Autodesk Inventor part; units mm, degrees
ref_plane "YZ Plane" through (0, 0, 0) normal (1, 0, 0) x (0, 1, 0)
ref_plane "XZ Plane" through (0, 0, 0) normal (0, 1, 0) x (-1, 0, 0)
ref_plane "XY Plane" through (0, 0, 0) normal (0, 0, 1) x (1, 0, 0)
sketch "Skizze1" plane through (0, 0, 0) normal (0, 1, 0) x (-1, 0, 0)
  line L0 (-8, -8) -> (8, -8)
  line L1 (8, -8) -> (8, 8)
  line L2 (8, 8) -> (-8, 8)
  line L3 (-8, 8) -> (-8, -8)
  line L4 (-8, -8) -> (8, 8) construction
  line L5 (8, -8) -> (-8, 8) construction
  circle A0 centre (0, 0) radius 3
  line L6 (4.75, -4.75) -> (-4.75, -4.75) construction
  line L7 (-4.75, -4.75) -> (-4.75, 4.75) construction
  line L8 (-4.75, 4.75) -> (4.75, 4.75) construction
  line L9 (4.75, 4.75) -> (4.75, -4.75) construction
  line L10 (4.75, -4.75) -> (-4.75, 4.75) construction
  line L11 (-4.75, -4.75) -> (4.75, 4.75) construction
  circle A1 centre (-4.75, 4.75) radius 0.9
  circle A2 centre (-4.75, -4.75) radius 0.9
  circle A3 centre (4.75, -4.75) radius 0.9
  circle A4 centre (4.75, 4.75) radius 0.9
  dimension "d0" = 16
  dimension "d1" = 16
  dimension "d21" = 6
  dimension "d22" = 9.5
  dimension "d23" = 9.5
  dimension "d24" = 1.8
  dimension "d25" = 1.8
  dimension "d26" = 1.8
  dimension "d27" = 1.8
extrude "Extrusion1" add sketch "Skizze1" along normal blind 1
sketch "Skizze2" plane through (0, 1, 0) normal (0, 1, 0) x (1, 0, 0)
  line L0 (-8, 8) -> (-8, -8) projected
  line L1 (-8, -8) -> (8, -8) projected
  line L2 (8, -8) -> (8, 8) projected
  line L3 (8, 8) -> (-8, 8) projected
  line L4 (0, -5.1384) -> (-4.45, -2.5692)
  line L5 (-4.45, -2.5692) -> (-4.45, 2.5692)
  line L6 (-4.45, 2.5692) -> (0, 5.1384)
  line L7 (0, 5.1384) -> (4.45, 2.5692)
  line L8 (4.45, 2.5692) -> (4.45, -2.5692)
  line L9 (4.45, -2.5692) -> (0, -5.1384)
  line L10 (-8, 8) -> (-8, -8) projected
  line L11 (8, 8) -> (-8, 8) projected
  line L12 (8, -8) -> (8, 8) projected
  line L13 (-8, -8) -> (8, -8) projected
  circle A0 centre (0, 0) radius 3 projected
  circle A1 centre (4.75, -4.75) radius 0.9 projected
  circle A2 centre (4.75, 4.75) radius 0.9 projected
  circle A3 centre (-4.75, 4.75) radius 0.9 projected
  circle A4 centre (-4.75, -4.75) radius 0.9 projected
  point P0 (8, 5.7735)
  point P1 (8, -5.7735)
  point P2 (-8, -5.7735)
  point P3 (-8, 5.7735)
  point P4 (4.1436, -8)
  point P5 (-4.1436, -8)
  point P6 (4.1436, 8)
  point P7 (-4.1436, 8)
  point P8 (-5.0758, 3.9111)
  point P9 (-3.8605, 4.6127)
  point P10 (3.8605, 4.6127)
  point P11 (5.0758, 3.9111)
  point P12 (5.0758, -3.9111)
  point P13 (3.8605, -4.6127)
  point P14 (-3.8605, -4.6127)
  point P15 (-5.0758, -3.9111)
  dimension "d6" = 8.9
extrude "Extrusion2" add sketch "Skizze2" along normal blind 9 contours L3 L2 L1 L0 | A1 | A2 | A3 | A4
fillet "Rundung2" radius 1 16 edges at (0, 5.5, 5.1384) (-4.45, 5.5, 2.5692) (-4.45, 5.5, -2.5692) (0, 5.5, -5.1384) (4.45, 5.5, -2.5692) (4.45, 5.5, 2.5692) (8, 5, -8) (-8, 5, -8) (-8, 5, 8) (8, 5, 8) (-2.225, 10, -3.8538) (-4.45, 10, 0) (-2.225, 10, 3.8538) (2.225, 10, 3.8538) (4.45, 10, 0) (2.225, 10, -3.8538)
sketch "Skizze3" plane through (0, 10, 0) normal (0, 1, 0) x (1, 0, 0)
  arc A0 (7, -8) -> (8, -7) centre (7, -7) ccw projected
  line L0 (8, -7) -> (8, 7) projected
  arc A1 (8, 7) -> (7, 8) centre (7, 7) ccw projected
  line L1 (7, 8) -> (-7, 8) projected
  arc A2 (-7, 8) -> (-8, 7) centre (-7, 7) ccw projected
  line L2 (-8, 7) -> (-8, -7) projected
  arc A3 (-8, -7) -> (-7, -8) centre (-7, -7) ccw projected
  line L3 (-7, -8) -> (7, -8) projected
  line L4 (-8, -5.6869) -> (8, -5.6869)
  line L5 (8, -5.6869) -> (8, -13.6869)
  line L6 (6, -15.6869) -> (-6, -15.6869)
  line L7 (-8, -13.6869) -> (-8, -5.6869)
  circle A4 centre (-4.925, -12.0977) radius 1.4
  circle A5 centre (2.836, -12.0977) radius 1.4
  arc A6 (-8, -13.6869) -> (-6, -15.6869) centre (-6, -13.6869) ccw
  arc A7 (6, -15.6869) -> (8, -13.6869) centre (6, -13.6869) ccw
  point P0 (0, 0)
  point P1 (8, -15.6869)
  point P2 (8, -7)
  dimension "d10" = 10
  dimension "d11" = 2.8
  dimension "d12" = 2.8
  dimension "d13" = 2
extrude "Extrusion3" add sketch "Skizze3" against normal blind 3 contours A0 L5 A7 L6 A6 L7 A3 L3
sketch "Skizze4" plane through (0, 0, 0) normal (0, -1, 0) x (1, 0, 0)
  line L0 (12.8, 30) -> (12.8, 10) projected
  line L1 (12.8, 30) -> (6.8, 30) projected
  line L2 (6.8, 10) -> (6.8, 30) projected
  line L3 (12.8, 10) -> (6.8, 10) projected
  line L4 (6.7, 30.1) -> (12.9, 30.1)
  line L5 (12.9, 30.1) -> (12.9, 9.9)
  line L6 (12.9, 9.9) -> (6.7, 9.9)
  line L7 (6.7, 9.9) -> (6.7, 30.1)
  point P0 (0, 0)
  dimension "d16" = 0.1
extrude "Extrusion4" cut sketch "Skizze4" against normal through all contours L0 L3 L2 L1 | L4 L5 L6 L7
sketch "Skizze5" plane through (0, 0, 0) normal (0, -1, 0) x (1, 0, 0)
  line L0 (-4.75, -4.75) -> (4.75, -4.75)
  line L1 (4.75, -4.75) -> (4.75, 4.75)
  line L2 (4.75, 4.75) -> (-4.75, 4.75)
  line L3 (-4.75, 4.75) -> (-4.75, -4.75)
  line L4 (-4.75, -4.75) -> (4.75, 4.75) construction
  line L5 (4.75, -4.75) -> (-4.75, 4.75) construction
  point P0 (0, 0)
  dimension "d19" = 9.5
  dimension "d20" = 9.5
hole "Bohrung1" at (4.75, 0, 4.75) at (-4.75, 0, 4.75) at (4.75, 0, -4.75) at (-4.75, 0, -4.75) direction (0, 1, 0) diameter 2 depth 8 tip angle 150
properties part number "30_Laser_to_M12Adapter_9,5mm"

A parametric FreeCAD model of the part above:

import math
import FreeCAD as App
import Part
import Sketcher

V = App.Vector
Q = App.Units.Quantity


def edges_at(feature, points):
    """Names of the edges that pass closest to the given points."""
    edges = feature.Shape.Edges
    near = lambda p: min(range(len(edges)), key=lambda i: edges[i].distToShape(Part.Vertex(*p))[0])
    return sorted({f"Edge{near(p) + 1}" for p in points})

doc = App.newDocument("Part")
body = doc.addObject("PartDesign::Body", "Body")

sketch1 = body.newObject("Sketcher::SketchObject", "Sketch")
sketch1.AttachmentSupport = (doc.getObject("XZ_Plane"), [""])
sketch1.MapMode = "FlatFace"
sketch1.addGeometry(Part.LineSegment(V(8, 8, 0), V(8, -8, 0)), False)
sketch1.addGeometry(Part.LineSegment(V(8, -8, 0), V(-8, -8, 0)), False)
sketch1.addGeometry(Part.LineSegment(V(-8, -8, 0), V(-8, 8, 0)), False)
sketch1.addGeometry(Part.LineSegment(V(-8, 8, 0), V(8, 8, 0)), False)
sketch1.addGeometry(Part.Circle(V(4.8, -4.8, 0), V(0, 0, 1), 0.9), False)
sketch1.addGeometry(Part.Circle(V(-4.8, -4.8, 0), V(0, 0, 1), 0.9), False)
sketch1.addGeometry(Part.Circle(V(4.8, 4.8, 0), V(0, 0, 1), 0.9), False)
sketch1.addGeometry(Part.Circle(V(0, 0, 0), V(0, 0, 1), 3), False)
sketch1.addGeometry(Part.Circle(V(-4.8, 4.8, 0), V(0, 0, 1), 0.9), False)
sketch1.addConstraint(Sketcher.Constraint("Coincident", 0, 2, 1, 1))
sketch1.addConstraint(Sketcher.Constraint("Coincident", 1, 2, 2, 1))
sketch1.addConstraint(Sketcher.Constraint("Coincident", 2, 2, 3, 1))
sketch1.addConstraint(Sketcher.Constraint("Coincident", 3, 2, 0, 1))
sketch1.addConstraint(Sketcher.Constraint("Vertical", 0))
sketch1.addConstraint(Sketcher.Constraint("Horizontal", 1))
sketch1.addConstraint(Sketcher.Constraint("Vertical", 2))
sketch1.addConstraint(Sketcher.Constraint("Horizontal", 3))
sketch1.addConstraint(Sketcher.Constraint("Coincident", 7, 3, -1, 1))
sketch1.addConstraint(Sketcher.Constraint("Equal", 4, 5))
sketch1.addConstraint(Sketcher.Constraint("Equal", 5, 6))
sketch1.addConstraint(Sketcher.Constraint("Equal", 6, 8))
sketch1.addConstraint(Sketcher.Constraint("Symmetric", 5, 3, 6, 3, -1, 1))
sketch1.addConstraint(Sketcher.Constraint("Symmetric", 4, 3, 8, 3, -1, 1))
sketch1.addConstraint(Sketcher.Constraint("Symmetric", 0, 2, 2, 2, -1, 1))
sketch1.addConstraint(Sketcher.Constraint("Symmetric", 4, 3, 5, 3, -2))
sketch1.addConstraint(Sketcher.Constraint("Equal", 3, 0))
sketch1.addConstraint(Sketcher.Constraint("Diameter", 7, Q("6 mm")))
sketch1.addConstraint(Sketcher.Constraint("Diameter", 4, Q("1.8 mm")))
sketch1.addConstraint(Sketcher.Constraint("DistanceX", 1, 2, 1, 1, Q("16 mm")))
sketch1.addConstraint(Sketcher.Constraint("DistanceX", 5, 3, 4, 3, Q("9.5 mm")))
sketch1.addConstraint(Sketcher.Constraint("DistanceY", 4, 3, 6, 3, Q("9.5 mm")))
pad1 = body.newObject("PartDesign::Pad", "Pad")
pad1.Profile = sketch1
pad1.Length = 1
pad1.Reversed = True

sketch2 = body.newObject("Sketcher::SketchObject", "Sketch001")
sketch2.AttachmentSupport = (doc.getObject("XZ_Plane"), [""])
sketch2.MapMode = "FlatFace"
sketch2.AttachmentOffset = App.Placement(V(0, 0, -1), App.Rotation())
sketch2.addGeometry(Part.LineSegment(V(8, -8, 0), V(-8, -8, 0)), False)
sketch2.addGeometry(Part.LineSegment(V(-8, -8, 0), V(-8, 8, 0)), False)
sketch2.addGeometry(Part.LineSegment(V(-8, 8, 0), V(8, 8, 0)), False)
sketch2.addGeometry(Part.LineSegment(V(8, 8, 0), V(8, -8, 0)), False)
sketch2.addGeometry(Part.LineSegment(V(4, 3, 0), V(0, 5, 0)), False)
sketch2.addGeometry(Part.LineSegment(V(0, 5, 0), V(-4, 3, 0)), False)
sketch2.addGeometry(Part.LineSegment(V(-4, 3, 0), V(-4, -3, 0)), False)
sketch2.addGeometry(Part.LineSegment(V(-4, -3, 0), V(0, -5, 0)), False)
sketch2.addGeometry(Part.LineSegment(V(0, -5, 0), V(4, -3, 0)), False)
sketch2.addGeometry(Part.LineSegment(V(4, -3, 0), V(4, 3, 0)), False)
sketch2.addConstraint(Sketcher.Constraint("Coincident", 0, 2, 1, 1))
sketch2.addConstraint(Sketcher.Constraint("Coincident", 1, 2, 2, 1))
sketch2.addConstraint(Sketcher.Constraint("Coincident", 2, 2, 3, 1))
sketch2.addConstraint(Sketcher.Constraint("Coincident", 3, 2, 0, 1))
sketch2.addConstraint(Sketcher.Constraint("Coincident", 4, 2, 5, 1))
sketch2.addConstraint(Sketcher.Constraint("Coincident", 5, 2, 6, 1))
sketch2.addConstraint(Sketcher.Constraint("Coincident", 6, 2, 7, 1))
sketch2.addConstraint(Sketcher.Constraint("Coincident", 7, 2, 8, 1))
sketch2.addConstraint(Sketcher.Constraint("Coincident", 8, 2, 9, 1))
sketch2.addConstraint(Sketcher.Constraint("Coincident", 9, 2, 4, 1))
sketch2.addConstraint(Sketcher.Constraint("Horizontal", 0))
sketch2.addConstraint(Sketcher.Constraint("Vertical", 1))
sketch2.addConstraint(Sketcher.Constraint("Horizontal", 2))
sketch2.addConstraint(Sketcher.Constraint("Vertical", 3))
sketch2.addConstraint(Sketcher.Constraint("Vertical", 6))
sketch2.addConstraint(Sketcher.Constraint("Vertical", 9))
sketch2.addConstraint(Sketcher.Constraint("Symmetric", 0, 2, 2, 2, -1, 1))
sketch2.addConstraint(Sketcher.Constraint("Symmetric", 4, 2, 7, 2, -1, 1))
sketch2.addConstraint(Sketcher.Constraint("Symmetric", 5, 2, 8, 2, -1, 1))
sketch2.addConstraint(Sketcher.Constraint("PointOnObject", 4, 2, -2))
sketch2.addConstraint(Sketcher.Constraint("Parallel", 4, 7))
sketch2.addConstraint(Sketcher.Constraint("Horizontal", 6, 2, 8, 2))
sketch2.addConstraint(Sketcher.Constraint("Equal", 2, 1))
sketch2.addConstraint(Sketcher.Constraint("DistanceX", 6, 2, 8, 2, Q("8.9 mm")))
sketch2.addConstraint(Sketcher.Constraint("DistanceX", 0, 2, 0, 1, Q("16 mm")))
sketch2.addConstraint(Sketcher.Constraint("Angle", 4, Q("150 deg")))
sketch2.addConstraint(Sketcher.Constraint("DistanceY", 6, 2, 6, 1, Q("5.1384 mm")))
pad2 = body.newObject("PartDesign::Pad", "Pad001")
pad2.Profile = sketch2
pad2.Length = 9
pad2.Reversed = True
doc.recompute()

fillet = body.newObject("PartDesign::Fillet", "Fillet")
fillet.Base = (pad2, edges_at(pad2, [
    (0, 5.5, 5.138),
    (-4.45, 5.5, 2.569),
    (-4.45, 5.5, -2.569),
    (0, 5.5, -5.138),
    (4.45, 5.5, -2.569),
    (4.45, 5.5, 2.569),
    (8, 5, -8),
    (-8, 5, -8),
    (-8, 5, 8),
    (8, 5, 8),
    (-2.225, 10, -3.854),
    (-4.45, 10, 0),
    (-2.225, 10, 3.854),
    (2.225, 10, 3.854),
    (4.45, 10, 0),
    (2.225, 10, -3.854),
]))
fillet.Radius = 1

sketch3 = body.newObject("Sketcher::SketchObject", "Sketch002")
sketch3.AttachmentSupport = (doc.getObject("XZ_Plane"), [""])
sketch3.MapMode = "FlatFace"
sketch3.AttachmentOffset = App.Placement(V(0, 0, -10), App.Rotation())
sketch3.addGeometry(Part.ArcOfCircle(Part.Circle(V(7, 7, 0), V(0, 0, 1), 1), math.radians(0), math.radians(90)), False)
sketch3.addGeometry(Part.LineSegment(V(7, 8, 0), V(-7, 8, 0)), False)
sketch3.addGeometry(Part.ArcOfCircle(Part.Circle(V(-7, 7, 0), V(0, 0, 1), 1), math.radians(90), math.radians(180)), False)
sketch3.addGeometry(Part.LineSegment(V(-8, 7, 0), V(-8, 13.7, 0)), False)
sketch3.addGeometry(Part.ArcOfCircle(Part.Circle(V(-6, 13.7, 0), V(0, 0, 1), 2), math.radians(90), math.radians(180)), False)
sketch3.addGeometry(Part.LineSegment(V(-6, 15.7, 0), V(6, 15.7, 0)), False)
sketch3.addGeometry(Part.ArcOfCircle(Part.Circle(V(6, 13.7, 0), V(0, 0, 1), 2), math.radians(0), math.radians(90)), False)
sketch3.addGeometry(Part.LineSegment(V(8, 13.7, 0), V(8, 7, 0)), False)
sketch3.addGeometry(Part.Circle(V(-4.9, 12.1, 0), V(0, 0, 1), 1.4), False)
sketch3.addGeometry(Part.Circle(V(2.8, 12.1, 0), V(0, 0, 1), 1.4), False)
sketch3.addConstraint(Sketcher.Constraint("Tangent", 0, 2, 1, 1))
sketch3.addConstraint(Sketcher.Constraint("Tangent", 1, 2, 2, 1))
sketch3.addConstraint(Sketcher.Constraint("Tangent", 2, 2, 3, 1))
sketch3.addConstraint(Sketcher.Constraint("Tangent", 3, 2, 4, 2))
sketch3.addConstraint(Sketcher.Constraint("Tangent", 4, 1, 5, 1))
sketch3.addConstraint(Sketcher.Constraint("Tangent", 5, 2, 6, 2))
sketch3.addConstraint(Sketcher.Constraint("Tangent", 6, 1, 7, 1))
sketch3.addConstraint(Sketcher.Constraint("Tangent", 7, 2, 0, 1))
sketch3.addConstraint(Sketcher.Constraint("Horizontal", 1))
sketch3.addConstraint(Sketcher.Constraint("Vertical", 3))
sketch3.addConstraint(Sketcher.Constraint("Horizontal", 5))
sketch3.addConstraint(Sketcher.Constraint("Vertical", 7))
sketch3.addConstraint(Sketcher.Constraint("Equal", 0, 2))
sketch3.addConstraint(Sketcher.Constraint("Equal", 4, 6))
sketch3.addConstraint(Sketcher.Constraint("Equal", 8, 9))
sketch3.addConstraint(Sketcher.Constraint("Horizontal", 8, 3, 9, 3))
sketch3.addConstraint(Sketcher.Constraint("Radius", 0, Q("1 mm")))
sketch3.addConstraint(Sketcher.Constraint("Radius", 4, Q("2 mm")))
sketch3.addConstraint(Sketcher.Constraint("Diameter", 8, Q("2.8 mm")))
sketch3.addConstraint(Sketcher.Constraint("DistanceX", 1, 2, 1, 1, Q("14 mm")))
sketch3.addConstraint(Sketcher.Constraint("DistanceX", -1, 1, 0, 3, Q("7 mm")))
sketch3.addConstraint(Sketcher.Constraint("DistanceY", -1, 1, 0, 3, Q("7 mm")))
sketch3.addConstraint(Sketcher.Constraint("DistanceY", 3, 1, 3, 2, Q("6.687 mm")))
sketch3.addConstraint(Sketcher.Constraint("DistanceX", 8, 3, -1, 1, Q("4.925 mm")))
sketch3.addConstraint(Sketcher.Constraint("DistanceX", -1, 1, 9, 3, Q("2.836 mm")))
sketch3.addConstraint(Sketcher.Constraint("DistanceY", -1, 1, 8, 3, Q("12.0977 mm")))
pad3 = body.newObject("PartDesign::Pad", "Pad002")
pad3.Profile = sketch3
pad3.Length = 3

sketch4 = body.newObject("Sketcher::SketchObject", "Sketch003")
sketch4.AttachmentSupport = (doc.getObject("XZ_Plane"), [""])
sketch4.MapMode = "FlatFace"
sketch4.addGeometry(Part.LineSegment(V(13, 30, 0), V(7, 30, 0)), False)
sketch4.addGeometry(Part.LineSegment(V(7, 30, 0), V(7, 10, 0)), False)
sketch4.addGeometry(Part.LineSegment(V(7, 10, 0), V(13, 10, 0)), False)
sketch4.addGeometry(Part.LineSegment(V(13, 10, 0), V(13, 30, 0)), False)
sketch4.addConstraint(Sketcher.Constraint("Coincident", 0, 2, 1, 1))
sketch4.addConstraint(Sketcher.Constraint("Coincident", 1, 2, 2, 1))
sketch4.addConstraint(Sketcher.Constraint("Coincident", 2, 2, 3, 1))
sketch4.addConstraint(Sketcher.Constraint("Coincident", 3, 2, 0, 1))
sketch4.addConstraint(Sketcher.Constraint("Horizontal", 0))
sketch4.addConstraint(Sketcher.Constraint("Vertical", 1))
sketch4.addConstraint(Sketcher.Constraint("Horizontal", 2))
sketch4.addConstraint(Sketcher.Constraint("Vertical", 3))
sketch4.addConstraint(Sketcher.Constraint("DistanceX", 0, 2, 0, 1, Q("6.2 mm")))
sketch4.addConstraint(Sketcher.Constraint("DistanceY", 1, 2, 1, 1, Q("20.2 mm")))
sketch4.addConstraint(Sketcher.Constraint("DistanceX", -1, 1, 0, 2, Q("6.7 mm")))
sketch4.addConstraint(Sketcher.Constraint("DistanceY", -1, 1, 0, 2, Q("30.1 mm")))
pocket1 = body.newObject("PartDesign::Pocket", "Pocket")
pocket1.Profile = sketch4
pocket1.Type = "ThroughAll"

sketch5 = body.newObject("Sketcher::SketchObject", "Sketch004")
sketch5.AttachmentSupport = (doc.getObject("XZ_Plane"), [""])
sketch5.MapMode = "FlatFace"
sketch5.addGeometry(Part.Circle(V(4.8, 4.8, 0), V(0, 0, 1), 1), False)
sketch5.addGeometry(Part.Circle(V(-4.8, 4.8, 0), V(0, 0, 1), 1), False)
sketch5.addGeometry(Part.Circle(V(4.8, -4.8, 0), V(0, 0, 1), 1), False)
sketch5.addGeometry(Part.Circle(V(-4.8, -4.8, 0), V(0, 0, 1), 1), False)
sketch5.addConstraint(Sketcher.Constraint("Equal", 0, 1))
sketch5.addConstraint(Sketcher.Constraint("Equal", 1, 2))
sketch5.addConstraint(Sketcher.Constraint("Equal", 2, 3))
sketch5.addConstraint(Sketcher.Constraint("Symmetric", 1, 3, 2, 3, -1, 1))
sketch5.addConstraint(Sketcher.Constraint("Symmetric", 0, 3, 3, 3, -1, 1))
sketch5.addConstraint(Sketcher.Constraint("Symmetric", 0, 3, 1, 3, -2))
sketch5.addConstraint(Sketcher.Constraint("Diameter", 0, Q("2 mm")))
sketch5.addConstraint(Sketcher.Constraint("DistanceX", 1, 3, 0, 3, Q("9.5 mm")))
sketch5.addConstraint(Sketcher.Constraint("DistanceY", 2, 3, 0, 3, Q("9.5 mm")))
doc.recompute()
hole = body.newObject("PartDesign::Hole", "Hole")
hole.Profile = sketch5
hole.ThreadType = "None"
hole.Diameter = 2
hole.DepthType = "Dimension"
hole.Depth = 8
hole.DrillPoint = "Angled"
hole.DrillPointAngle = 150

doc.recompute()
